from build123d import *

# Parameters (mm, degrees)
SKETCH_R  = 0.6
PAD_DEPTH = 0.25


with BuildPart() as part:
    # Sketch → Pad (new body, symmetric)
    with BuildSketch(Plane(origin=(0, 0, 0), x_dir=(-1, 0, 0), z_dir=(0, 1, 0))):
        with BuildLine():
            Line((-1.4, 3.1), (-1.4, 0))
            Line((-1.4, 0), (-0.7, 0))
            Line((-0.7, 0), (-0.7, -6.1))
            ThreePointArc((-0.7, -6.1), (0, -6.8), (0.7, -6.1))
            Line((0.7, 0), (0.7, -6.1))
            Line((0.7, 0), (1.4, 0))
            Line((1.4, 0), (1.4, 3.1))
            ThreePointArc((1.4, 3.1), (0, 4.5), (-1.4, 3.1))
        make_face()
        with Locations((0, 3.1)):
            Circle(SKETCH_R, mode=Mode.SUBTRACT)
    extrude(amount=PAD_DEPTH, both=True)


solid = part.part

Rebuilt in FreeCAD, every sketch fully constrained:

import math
import FreeCAD as App
import Part
import Sketcher
Q = App.Units.Quantity

doc = App.newDocument("Part")
params = doc.addObject("Spreadsheet::Sheet", "Params")
for row, (alias, value) in enumerate([
    ("sketch1_diameter", "1.2 mm"),
    ("sketch1_radius", "0.7 mm"),
    ("sketch1_radius2", "1.4 mm"),
    ("sketch1_height", "3.1 mm"),
    ("sketch1_height2", "6.1 mm"),
    ("pad1_length", "0.5 mm"),
], start=1):
    params.set(f"A{row}", alias)
    params.set(f"B{row}", "=" + value)
    params.setAlias(f"B{row}", alias)

body = doc.addObject("PartDesign::Body", "Body")

sketch1 = body.newObject("Sketcher::SketchObject", "Sketch")
sketch1.AttachmentSupport = (doc.getObject("XZ_Plane"), [""])
sketch1.MapMode = "FlatFace"
sketch1.addGeometry([
    Part.LineSegment(App.Vector(1.4, 3.1, 0), App.Vector(1.4, 0, 0)),
    Part.LineSegment(App.Vector(1.4, 0, 0), App.Vector(0.7, 0, 0)),
    Part.LineSegment(App.Vector(0.7, 0, 0), App.Vector(0.7, -6.1, 0)),
    Part.ArcOfCircle(Part.Circle(App.Vector(0, -6.1, 0), App.Vector(0, 0, 1), 0.7), math.radians(180), math.radians(360)),
    Part.LineSegment(App.Vector(-0.7, -6.1, 0), App.Vector(-0.7, 0, 0)),
    Part.LineSegment(App.Vector(-0.7, 0, 0), App.Vector(-1.4, 0, 0)),
    Part.LineSegment(App.Vector(-1.4, 0, 0), App.Vector(-1.4, 3.1, 0)),
    Part.ArcOfCircle(Part.Circle(App.Vector(0, 3.1, 0), App.Vector(0, 0, 1), 1.4), math.radians(0), math.radians(180)),
    Part.Circle(App.Vector(0, 3.1, 0), App.Vector(0, 0, 1), 0.6),
], False)
sketch1.addConstraint([
    Sketcher.Constraint("Coincident", 0, 2, 1, 1),
    Sketcher.Constraint("Coincident", 1, 2, 2, 1),
    Sketcher.Constraint("Tangent", 2, 2, 3, 2),
    Sketcher.Constraint("Tangent", 3, 1, 4, 1),
    Sketcher.Constraint("Coincident", 4, 2, 5, 1),
    Sketcher.Constraint("Coincident", 5, 2, 6, 1),
    Sketcher.Constraint("Tangent", 6, 2, 7, 2),
    Sketcher.Constraint("Tangent", 7, 1, 0, 1),
    Sketcher.Constraint("Vertical", 0),
    Sketcher.Constraint("Horizontal", 1),
    Sketcher.Constraint("Vertical", 2),
    Sketcher.Constraint("Vertical", 4),
    Sketcher.Constraint("Horizontal", 5),
    Sketcher.Constraint("Vertical", 6),
    Sketcher.Constraint("Coincident", 8, 3, 7, 3),
    Sketcher.Constraint("Symmetric", 1, 2, 4, 2, -1, 1),
    Sketcher.Constraint("Symmetric", 0, 2, 5, 2, -2),
    Sketcher.Constraint("Diameter", 8, Q("1.2 mm")),
    Sketcher.Constraint("Radius", 3, Q("0.7 mm")),
    Sketcher.Constraint("Radius", 7, Q("1.4 mm")),
    Sketcher.Constraint("DistanceY", 0, 2, 0, 1, Q("3.1 mm")),
    Sketcher.Constraint("DistanceY", 2, 2, 2, 1, Q("6.1 mm")),
])
sketch1.setExpression("Constraints[17]", "Params.sketch1_diameter")
sketch1.setExpression("Constraints[18]", "Params.sketch1_radius")
sketch1.setExpression("Constraints[19]", "Params.sketch1_radius2")
sketch1.setExpression("Constraints[20]", "Params.sketch1_height")
sketch1.setExpression("Constraints[21]", "Params.sketch1_height2")
pad1 = body.newObject("PartDesign::Pad", "Pad")
pad1.Profile = sketch1
pad1.setExpression("Length", "Params.pad1_length")
pad1.Midplane = True

doc.recompute()
